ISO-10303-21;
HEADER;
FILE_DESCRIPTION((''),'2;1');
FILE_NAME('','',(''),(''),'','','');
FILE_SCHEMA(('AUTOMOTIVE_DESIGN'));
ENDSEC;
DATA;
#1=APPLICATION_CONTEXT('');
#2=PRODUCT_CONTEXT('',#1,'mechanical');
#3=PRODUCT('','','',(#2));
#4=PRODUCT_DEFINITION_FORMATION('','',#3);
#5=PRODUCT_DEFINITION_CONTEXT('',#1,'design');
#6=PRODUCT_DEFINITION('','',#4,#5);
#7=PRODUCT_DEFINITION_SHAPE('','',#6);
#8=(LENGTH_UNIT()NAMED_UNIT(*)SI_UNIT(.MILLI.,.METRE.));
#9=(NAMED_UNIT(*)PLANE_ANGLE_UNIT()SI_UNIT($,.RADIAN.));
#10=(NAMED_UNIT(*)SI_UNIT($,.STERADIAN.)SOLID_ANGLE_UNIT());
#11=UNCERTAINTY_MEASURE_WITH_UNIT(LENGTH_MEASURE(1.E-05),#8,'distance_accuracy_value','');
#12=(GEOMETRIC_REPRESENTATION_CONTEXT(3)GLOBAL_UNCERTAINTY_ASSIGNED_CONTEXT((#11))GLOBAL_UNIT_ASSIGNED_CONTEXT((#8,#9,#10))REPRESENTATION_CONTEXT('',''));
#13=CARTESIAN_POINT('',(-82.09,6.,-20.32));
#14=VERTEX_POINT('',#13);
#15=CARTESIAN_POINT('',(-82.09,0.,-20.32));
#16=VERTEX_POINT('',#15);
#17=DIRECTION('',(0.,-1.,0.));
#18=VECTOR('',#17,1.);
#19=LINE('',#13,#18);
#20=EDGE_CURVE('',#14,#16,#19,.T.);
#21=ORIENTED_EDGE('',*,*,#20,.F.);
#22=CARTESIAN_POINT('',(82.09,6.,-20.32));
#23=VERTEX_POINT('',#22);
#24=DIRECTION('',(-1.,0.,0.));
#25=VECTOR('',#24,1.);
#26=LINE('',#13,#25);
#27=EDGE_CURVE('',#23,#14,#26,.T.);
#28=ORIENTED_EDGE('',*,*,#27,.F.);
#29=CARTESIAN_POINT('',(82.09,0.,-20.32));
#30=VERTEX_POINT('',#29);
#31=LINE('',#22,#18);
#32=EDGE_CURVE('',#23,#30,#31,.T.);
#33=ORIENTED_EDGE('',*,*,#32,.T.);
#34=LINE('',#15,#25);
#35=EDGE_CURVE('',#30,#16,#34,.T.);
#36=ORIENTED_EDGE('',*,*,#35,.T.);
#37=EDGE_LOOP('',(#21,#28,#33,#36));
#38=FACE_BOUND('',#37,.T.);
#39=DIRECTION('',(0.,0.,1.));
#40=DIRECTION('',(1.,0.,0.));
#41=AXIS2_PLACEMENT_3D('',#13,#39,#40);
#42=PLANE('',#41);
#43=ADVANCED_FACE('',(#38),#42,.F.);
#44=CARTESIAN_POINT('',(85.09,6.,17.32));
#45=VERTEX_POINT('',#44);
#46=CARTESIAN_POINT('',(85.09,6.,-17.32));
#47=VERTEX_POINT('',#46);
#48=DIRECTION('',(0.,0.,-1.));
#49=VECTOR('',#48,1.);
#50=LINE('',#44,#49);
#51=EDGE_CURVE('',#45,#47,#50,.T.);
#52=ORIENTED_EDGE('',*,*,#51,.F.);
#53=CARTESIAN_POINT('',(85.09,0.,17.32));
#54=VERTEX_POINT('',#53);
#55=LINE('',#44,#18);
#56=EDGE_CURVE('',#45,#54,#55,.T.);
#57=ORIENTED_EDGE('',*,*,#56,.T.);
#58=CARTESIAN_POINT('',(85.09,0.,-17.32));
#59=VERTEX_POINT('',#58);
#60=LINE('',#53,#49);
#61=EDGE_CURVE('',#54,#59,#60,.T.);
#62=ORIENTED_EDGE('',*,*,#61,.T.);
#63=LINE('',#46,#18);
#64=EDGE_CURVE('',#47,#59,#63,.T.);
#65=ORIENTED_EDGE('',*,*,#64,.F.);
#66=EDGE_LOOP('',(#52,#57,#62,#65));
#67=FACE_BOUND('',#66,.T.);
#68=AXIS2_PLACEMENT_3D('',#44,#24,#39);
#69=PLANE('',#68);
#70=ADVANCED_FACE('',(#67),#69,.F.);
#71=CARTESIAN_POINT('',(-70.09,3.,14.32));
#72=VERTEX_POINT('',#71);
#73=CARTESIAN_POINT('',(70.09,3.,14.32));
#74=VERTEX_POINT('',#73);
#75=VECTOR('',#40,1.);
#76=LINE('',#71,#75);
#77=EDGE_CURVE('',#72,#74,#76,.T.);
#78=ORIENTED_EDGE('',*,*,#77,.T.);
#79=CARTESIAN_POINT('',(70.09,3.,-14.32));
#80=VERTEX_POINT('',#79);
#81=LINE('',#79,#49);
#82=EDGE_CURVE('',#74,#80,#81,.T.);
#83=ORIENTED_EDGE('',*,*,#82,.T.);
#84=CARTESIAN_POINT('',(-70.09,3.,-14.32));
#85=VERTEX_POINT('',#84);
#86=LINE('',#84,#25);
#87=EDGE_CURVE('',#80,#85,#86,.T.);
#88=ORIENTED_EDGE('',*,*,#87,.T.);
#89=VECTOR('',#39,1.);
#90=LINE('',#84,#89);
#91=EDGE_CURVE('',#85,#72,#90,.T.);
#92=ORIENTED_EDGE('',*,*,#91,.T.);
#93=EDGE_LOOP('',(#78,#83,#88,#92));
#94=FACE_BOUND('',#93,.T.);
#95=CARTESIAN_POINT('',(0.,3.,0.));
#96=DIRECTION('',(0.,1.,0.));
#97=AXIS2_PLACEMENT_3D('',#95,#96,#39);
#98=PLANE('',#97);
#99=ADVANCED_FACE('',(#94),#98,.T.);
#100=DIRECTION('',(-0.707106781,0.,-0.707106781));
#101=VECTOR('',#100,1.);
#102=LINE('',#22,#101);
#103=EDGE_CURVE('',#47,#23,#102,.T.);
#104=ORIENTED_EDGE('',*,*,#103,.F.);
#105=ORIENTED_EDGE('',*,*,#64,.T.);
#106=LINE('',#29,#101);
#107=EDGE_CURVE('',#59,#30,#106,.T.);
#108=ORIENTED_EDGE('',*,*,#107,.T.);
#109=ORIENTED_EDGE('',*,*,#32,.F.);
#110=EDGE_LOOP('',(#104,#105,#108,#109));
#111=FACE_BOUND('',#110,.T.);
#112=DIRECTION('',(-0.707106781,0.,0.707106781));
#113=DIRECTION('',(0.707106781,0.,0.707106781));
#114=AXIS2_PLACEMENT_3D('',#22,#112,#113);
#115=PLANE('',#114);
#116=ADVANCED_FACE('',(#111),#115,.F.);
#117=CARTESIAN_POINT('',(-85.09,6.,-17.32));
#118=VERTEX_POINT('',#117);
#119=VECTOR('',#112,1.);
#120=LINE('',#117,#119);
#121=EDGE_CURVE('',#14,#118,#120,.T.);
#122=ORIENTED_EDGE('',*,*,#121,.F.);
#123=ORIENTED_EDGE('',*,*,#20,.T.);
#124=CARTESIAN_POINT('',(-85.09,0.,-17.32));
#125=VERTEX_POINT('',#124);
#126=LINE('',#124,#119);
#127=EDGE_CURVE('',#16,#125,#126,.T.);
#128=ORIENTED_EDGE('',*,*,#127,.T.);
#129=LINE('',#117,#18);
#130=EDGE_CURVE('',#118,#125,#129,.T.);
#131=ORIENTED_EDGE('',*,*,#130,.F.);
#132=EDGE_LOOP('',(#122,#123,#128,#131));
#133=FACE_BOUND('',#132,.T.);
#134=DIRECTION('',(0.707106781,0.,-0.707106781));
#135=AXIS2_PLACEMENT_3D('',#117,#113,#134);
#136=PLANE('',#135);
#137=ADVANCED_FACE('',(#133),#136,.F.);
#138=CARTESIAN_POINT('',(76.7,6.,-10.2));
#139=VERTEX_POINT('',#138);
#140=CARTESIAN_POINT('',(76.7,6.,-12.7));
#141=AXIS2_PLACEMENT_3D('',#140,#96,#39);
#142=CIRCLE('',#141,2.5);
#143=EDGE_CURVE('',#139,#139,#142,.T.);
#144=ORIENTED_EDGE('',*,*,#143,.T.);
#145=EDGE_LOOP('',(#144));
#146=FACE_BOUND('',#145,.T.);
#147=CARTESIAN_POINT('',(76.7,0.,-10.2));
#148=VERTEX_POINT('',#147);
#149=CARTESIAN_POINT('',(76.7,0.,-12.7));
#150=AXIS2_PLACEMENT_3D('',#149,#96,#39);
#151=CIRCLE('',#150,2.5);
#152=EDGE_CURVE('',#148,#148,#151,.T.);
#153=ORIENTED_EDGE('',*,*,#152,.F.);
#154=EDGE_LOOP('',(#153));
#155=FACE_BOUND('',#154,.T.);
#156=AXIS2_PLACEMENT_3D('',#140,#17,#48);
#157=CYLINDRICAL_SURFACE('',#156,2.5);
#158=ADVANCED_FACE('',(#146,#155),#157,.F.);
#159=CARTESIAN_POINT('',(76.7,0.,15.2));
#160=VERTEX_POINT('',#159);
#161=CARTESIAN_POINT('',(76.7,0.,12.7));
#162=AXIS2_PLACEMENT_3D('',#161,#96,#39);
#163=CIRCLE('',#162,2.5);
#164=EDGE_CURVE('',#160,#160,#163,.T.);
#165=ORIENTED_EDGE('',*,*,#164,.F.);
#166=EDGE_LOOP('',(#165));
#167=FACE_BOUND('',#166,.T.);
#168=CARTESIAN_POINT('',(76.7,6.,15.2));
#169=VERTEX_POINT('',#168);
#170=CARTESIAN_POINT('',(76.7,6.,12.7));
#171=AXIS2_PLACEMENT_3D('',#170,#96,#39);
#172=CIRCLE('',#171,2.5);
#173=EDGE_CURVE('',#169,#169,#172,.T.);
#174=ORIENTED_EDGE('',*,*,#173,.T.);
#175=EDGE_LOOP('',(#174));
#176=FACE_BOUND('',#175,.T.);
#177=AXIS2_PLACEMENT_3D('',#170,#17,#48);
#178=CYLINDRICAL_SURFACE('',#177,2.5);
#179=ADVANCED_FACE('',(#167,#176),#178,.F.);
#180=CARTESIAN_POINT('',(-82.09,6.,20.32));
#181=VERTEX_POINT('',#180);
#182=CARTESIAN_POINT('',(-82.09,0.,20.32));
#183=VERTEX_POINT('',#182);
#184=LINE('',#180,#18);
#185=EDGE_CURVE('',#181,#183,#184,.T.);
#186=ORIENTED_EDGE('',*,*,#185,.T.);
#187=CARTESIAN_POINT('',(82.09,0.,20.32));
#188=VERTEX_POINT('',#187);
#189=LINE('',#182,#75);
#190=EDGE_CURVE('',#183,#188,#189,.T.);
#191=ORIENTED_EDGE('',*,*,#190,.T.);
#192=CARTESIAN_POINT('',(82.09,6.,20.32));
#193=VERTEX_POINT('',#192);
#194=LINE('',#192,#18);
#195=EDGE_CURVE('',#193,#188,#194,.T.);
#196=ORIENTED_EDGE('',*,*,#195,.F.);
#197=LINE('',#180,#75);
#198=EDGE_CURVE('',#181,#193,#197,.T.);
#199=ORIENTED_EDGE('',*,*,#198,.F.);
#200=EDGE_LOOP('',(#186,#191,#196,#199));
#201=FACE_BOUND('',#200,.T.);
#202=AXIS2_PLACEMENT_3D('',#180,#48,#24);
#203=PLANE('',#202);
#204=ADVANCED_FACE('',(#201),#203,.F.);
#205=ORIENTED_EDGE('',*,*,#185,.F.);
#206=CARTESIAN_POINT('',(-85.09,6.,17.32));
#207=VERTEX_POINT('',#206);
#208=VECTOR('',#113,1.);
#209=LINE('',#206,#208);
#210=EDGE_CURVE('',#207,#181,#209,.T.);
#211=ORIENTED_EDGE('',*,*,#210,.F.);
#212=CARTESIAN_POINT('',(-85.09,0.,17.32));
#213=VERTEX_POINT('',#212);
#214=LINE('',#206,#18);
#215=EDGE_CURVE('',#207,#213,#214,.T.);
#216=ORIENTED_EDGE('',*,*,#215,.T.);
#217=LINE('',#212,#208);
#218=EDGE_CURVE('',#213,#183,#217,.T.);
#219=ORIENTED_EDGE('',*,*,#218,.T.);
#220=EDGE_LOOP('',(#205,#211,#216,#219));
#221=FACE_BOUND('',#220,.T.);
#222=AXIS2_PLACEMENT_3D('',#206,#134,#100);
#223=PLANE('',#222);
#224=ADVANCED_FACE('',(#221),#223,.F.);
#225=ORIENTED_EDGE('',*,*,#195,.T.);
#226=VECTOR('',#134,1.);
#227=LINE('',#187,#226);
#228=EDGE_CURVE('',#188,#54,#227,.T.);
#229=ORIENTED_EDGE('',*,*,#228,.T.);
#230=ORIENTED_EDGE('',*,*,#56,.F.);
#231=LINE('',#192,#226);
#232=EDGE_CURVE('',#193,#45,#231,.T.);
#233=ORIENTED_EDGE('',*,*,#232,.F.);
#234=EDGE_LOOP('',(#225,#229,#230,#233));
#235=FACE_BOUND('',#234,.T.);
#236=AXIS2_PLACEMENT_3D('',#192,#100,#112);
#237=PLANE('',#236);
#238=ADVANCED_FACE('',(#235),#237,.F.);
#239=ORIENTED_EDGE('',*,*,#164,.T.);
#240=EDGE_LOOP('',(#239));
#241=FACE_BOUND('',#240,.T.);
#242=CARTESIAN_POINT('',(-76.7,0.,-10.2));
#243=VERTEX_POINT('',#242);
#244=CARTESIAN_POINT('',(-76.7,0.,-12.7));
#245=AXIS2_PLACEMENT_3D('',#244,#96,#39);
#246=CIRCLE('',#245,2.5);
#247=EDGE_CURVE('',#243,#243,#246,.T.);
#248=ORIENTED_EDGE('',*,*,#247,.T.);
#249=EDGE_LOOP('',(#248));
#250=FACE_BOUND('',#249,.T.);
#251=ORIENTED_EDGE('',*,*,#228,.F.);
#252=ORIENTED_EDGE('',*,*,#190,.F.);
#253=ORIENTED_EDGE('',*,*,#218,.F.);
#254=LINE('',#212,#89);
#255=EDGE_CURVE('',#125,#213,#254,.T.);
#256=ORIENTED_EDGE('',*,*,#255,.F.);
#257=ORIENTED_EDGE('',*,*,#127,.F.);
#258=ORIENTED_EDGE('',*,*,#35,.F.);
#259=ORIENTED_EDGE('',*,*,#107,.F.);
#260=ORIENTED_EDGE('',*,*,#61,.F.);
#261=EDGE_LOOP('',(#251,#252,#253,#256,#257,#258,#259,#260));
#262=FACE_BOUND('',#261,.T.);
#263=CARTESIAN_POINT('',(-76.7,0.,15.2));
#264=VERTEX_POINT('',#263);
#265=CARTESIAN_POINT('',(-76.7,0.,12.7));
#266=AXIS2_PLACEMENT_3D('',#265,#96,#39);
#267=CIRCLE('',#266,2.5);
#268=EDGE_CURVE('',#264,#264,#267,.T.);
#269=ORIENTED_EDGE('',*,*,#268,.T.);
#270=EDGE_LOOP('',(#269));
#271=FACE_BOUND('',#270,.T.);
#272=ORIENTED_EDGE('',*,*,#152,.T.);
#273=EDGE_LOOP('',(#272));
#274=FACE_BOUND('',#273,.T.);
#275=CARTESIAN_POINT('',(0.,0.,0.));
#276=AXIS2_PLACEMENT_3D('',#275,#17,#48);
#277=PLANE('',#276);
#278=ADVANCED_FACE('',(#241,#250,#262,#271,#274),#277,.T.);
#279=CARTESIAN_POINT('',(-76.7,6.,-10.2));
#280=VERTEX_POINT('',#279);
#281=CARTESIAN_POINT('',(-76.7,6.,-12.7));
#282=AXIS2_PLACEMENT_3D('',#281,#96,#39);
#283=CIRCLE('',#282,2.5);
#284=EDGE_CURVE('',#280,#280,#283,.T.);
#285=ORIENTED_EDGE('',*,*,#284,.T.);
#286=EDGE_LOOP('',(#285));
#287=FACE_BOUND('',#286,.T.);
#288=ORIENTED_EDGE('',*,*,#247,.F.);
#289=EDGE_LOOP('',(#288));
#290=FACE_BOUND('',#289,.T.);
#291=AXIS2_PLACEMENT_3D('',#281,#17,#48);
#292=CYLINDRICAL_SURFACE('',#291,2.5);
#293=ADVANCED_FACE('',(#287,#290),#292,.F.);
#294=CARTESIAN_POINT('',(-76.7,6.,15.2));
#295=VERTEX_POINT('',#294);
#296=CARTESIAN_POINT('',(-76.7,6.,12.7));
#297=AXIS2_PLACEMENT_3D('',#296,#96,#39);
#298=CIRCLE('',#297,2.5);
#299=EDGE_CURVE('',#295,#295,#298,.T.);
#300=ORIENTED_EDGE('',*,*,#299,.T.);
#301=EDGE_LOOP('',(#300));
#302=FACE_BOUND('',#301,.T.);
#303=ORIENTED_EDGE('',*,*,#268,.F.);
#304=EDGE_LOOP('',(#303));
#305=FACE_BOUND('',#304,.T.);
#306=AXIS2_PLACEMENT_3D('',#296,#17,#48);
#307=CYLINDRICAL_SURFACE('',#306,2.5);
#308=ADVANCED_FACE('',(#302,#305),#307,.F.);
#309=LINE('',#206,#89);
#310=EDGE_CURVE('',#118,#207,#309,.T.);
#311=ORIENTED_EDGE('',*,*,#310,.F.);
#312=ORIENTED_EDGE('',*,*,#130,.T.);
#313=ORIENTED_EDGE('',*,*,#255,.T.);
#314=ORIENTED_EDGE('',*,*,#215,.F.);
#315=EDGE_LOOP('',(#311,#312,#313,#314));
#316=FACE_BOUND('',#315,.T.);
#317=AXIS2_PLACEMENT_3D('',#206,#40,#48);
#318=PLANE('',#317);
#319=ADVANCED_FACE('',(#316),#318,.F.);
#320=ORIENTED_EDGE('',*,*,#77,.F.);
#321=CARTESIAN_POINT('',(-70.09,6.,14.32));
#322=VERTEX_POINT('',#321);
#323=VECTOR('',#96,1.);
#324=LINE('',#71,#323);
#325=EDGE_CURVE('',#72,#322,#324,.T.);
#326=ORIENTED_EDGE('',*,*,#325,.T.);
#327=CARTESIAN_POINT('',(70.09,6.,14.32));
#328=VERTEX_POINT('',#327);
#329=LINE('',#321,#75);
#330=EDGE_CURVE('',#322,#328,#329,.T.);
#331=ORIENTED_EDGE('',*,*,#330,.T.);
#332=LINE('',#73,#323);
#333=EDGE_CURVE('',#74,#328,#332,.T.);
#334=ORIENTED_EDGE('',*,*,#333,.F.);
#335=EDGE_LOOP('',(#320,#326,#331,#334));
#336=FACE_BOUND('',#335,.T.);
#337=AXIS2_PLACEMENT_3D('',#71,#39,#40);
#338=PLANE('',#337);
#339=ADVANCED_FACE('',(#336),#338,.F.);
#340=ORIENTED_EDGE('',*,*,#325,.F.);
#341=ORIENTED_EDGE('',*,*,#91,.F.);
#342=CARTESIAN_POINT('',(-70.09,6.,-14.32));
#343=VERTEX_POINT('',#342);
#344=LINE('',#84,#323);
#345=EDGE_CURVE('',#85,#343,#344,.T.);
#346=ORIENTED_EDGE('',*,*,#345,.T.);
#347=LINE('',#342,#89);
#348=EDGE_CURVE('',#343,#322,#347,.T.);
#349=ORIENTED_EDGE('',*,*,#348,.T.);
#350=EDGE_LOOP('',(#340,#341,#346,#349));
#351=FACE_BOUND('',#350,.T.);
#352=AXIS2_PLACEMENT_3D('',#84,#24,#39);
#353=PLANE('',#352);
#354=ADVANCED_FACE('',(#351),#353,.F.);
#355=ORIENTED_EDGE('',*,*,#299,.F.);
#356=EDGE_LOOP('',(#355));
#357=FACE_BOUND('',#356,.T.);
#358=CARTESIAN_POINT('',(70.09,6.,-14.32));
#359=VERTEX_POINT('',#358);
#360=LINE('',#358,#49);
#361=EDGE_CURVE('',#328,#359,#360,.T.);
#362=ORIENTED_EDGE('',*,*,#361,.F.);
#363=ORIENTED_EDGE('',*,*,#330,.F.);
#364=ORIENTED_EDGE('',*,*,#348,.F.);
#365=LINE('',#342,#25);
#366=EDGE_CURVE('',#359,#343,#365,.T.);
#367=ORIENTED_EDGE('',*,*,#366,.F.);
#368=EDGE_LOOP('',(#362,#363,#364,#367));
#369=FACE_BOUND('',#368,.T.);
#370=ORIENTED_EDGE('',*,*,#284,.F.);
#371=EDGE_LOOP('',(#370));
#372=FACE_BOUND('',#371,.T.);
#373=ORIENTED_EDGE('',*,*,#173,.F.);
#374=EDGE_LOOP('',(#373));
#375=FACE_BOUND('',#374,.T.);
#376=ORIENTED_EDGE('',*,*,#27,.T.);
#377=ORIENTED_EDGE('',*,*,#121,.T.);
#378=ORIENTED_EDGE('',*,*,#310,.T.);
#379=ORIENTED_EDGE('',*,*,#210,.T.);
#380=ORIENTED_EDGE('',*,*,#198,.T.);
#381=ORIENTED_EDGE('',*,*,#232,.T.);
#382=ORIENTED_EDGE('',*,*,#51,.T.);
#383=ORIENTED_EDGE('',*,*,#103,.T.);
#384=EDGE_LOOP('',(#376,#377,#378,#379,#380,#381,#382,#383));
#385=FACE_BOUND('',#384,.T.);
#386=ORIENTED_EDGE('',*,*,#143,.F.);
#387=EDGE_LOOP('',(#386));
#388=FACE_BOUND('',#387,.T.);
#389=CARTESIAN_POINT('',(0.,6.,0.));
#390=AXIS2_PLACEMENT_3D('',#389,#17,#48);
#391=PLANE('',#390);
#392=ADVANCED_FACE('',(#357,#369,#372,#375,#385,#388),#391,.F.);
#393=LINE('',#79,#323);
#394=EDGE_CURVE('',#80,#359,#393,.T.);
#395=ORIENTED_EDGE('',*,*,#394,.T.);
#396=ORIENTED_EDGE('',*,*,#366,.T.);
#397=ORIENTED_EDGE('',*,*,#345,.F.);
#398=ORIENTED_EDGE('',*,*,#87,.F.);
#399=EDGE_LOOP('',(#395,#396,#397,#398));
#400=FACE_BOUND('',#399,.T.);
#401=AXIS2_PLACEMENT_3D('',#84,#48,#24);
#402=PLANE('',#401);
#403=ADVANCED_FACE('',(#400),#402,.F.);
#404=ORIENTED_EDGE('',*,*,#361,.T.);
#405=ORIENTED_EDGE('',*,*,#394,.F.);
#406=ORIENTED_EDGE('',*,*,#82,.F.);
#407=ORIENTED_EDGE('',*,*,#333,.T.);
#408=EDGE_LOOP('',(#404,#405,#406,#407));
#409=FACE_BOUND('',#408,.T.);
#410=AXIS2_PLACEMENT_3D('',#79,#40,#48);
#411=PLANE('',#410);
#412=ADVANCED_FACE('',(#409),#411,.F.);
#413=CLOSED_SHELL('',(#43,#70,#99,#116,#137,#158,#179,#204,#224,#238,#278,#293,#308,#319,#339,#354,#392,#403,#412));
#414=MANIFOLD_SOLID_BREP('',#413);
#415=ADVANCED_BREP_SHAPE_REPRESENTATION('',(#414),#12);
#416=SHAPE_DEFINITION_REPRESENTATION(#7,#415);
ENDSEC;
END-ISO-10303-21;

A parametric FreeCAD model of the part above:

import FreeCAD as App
import Part
import Sketcher
Q = App.Units.Quantity

doc = App.newDocument("Part")
params = doc.addObject("Spreadsheet::Sheet", "Params")
for row, (alias, value) in enumerate([
    ("sketch1_diameter", "5 mm"),
    ("sketch1_width", "164.18 mm"),
    ("sketch1_height", "34.64 mm"),
    ("pad1_length", "6 mm"),
    ("sketch2_width", "140.18 mm"),
    ("sketch2_height", "28.64 mm"),
    ("pocket1_length", "3 mm"),
], start=1):
    params.set(f"A{row}", alias)
    params.set(f"B{row}", "=" + value)
    params.setAlias(f"B{row}", alias)

body = doc.addObject("PartDesign::Body", "Body")

sketch1 = doc.addObject("Sketcher::SketchObject", "Sketch")
body.addObject(sketch1)
sketch1.AttachmentSupport = (doc.XZ_Plane, [""])
sketch1.MapMode = "FlatFace"
sketch1.addGeometry([
    Part.LineSegment(App.Vector(-82.1, -20.3, 0), App.Vector(-85.1, -17.3, 0)),
    Part.LineSegment(App.Vector(-85.1, -17.3, 0), App.Vector(-85.1, 17.3, 0)),
    Part.LineSegment(App.Vector(-85.1, 17.3, 0), App.Vector(-82.1, 20.3, 0)),
    Part.LineSegment(App.Vector(-82.1, 20.3, 0), App.Vector(82.1, 20.3, 0)),
    Part.LineSegment(App.Vector(82.1, 20.3, 0), App.Vector(85.1, 17.3, 0)),
    Part.LineSegment(App.Vector(85.1, 17.3, 0), App.Vector(85.1, -17.3, 0)),
    Part.LineSegment(App.Vector(85.1, -17.3, 0), App.Vector(82.1, -20.3, 0)),
    Part.LineSegment(App.Vector(82.1, -20.3, 0), App.Vector(-82.1, -20.3, 0)),
    Part.Circle(App.Vector(76.7, 12.7, 0), App.Vector(0, 0, 1), 2.5),
    Part.Circle(App.Vector(-76.7, 12.7, 0), App.Vector(0, 0, 1), 2.5),
    Part.Circle(App.Vector(76.7, -12.7, 0), App.Vector(0, 0, 1), 2.5),
    Part.Circle(App.Vector(-76.7, -12.7, 0), App.Vector(0, 0, 1), 2.5),
], False)
sketch1.addConstraint([
    Sketcher.Constraint("Coincident", 0, 2, 1, 1),
    Sketcher.Constraint("Coincident", 1, 2, 2, 1),
    Sketcher.Constraint("Coincident", 2, 2, 3, 1),
    Sketcher.Constraint("Coincident", 3, 2, 4, 1),
    Sketcher.Constraint("Coincident", 4, 2, 5, 1),
    Sketcher.Constraint("Coincident", 5, 2, 6, 1),
    Sketcher.Constraint("Coincident", 6, 2, 7, 1),
    Sketcher.Constraint("Coincident", 7, 2, 0, 1),
    Sketcher.Constraint("Vertical", 1),
    Sketcher.Constraint("Horizontal", 3),
    Sketcher.Constraint("Vertical", 5),
    Sketcher.Constraint("Horizontal", 7),
    Sketcher.Constraint("Equal", 8, 9),
    Sketcher.Constraint("Equal", 9, 10),
    Sketcher.Constraint("Equal", 10, 11),
    Sketcher.Constraint("Symmetric", 9, 3, 10, 3, -1, 1),
    Sketcher.Constraint("Symmetric", 8, 3, 11, 3, -1, 1),
    Sketcher.Constraint("Symmetric", 0, 2, 4, 2, -1, 1),
    Sketcher.Constraint("Symmetric", 2, 2, 6, 2, -1, 1),
    Sketcher.Constraint("Symmetric", 8, 3, 9, 3, -2),
    Sketcher.Constraint("Perpendicular", 0, 2),
    Sketcher.Constraint("Perpendicular", 2, 4),
    Sketcher.Constraint("Perpendicular", 4, 6),
    Sketcher.Constraint("Horizontal", 1, 2, 4, 2),
    Sketcher.Constraint("Vertical", 3, 2, 6, 2),
    Sketcher.Constraint("Diameter", 8, Q("5 mm")),
    Sketcher.Constraint("DistanceX", 1, 2, 2, 2, Q("3 mm")),
    Sketcher.Constraint("DistanceX", 3, 1, 3, 2, Q("164.18 mm")),
    Sketcher.Constraint("DistanceY", 1, 1, 1, 2, Q("34.64 mm")),
    Sketcher.Constraint("DistanceX", -1, 1, 8, 3, Q("76.7 mm")),
    Sketcher.Constraint("DistanceY", -1, 1, 8, 3, Q("12.7 mm")),
])
sketch1.setExpression("Constraints[25]", "Params.sketch1_diameter")
sketch1.setExpression("Constraints[27]", "Params.sketch1_width")
sketch1.setExpression("Constraints[28]", "Params.sketch1_height")
pad1 = doc.addObject("PartDesign::Pad", "Pad")
body.addObject(pad1)
pad1.Profile = sketch1
pad1.setExpression("Length", "Params.pad1_length")
pad1.Reversed = True

sketch2 = doc.addObject("Sketcher::SketchObject", "Sketch001")
body.addObject(sketch2)
sketch2.AttachmentSupport = (doc.XZ_Plane, [""])
sketch2.MapMode = "FlatFace"
sketch2.AttachmentOffset = App.Placement(App.Vector(0, 0, -6), App.Rotation())
sketch2.addGeometry([
    Part.LineSegment(App.Vector(-70, -14, 0), App.Vector(-70, 14, 0)),
    Part.LineSegment(App.Vector(-70, 14, 0), App.Vector(70, 14, 0)),
    Part.LineSegment(App.Vector(70, 14, 0), App.Vector(70, -14, 0)),
    Part.LineSegment(App.Vector(70, -14, 0), App.Vector(-70, -14, 0)),
], False)
sketch2.addConstraint([
    Sketcher.Constraint("Coincident", 0, 2, 1, 1),
    Sketcher.Constraint("Coincident", 1, 2, 2, 1),
    Sketcher.Constraint("Coincident", 2, 2, 3, 1),
    Sketcher.Constraint("Coincident", 3, 2, 0, 1),
    Sketcher.Constraint("Vertical", 0),
    Sketcher.Constraint("Horizontal", 1),
    Sketcher.Constraint("Vertical", 2),
    Sketcher.Constraint("Horizontal", 3),
    Sketcher.Constraint("Symmetric", 0, 2, 2, 2, -1, 1),
    Sketcher.Constraint("DistanceX", 1, 1, 1, 2, Q("140.18 mm")),
    Sketcher.Constraint("DistanceY", 0, 1, 0, 2, Q("28.64 mm")),
])
sketch2.setExpression("Constraints[9]", "Params.sketch2_width")
sketch2.setExpression("Constraints[10]", "Params.sketch2_height")
pocket1 = doc.addObject("PartDesign::Pocket", "Pocket")
body.addObject(pocket1)
pocket1.Profile = sketch2
pocket1.setExpression("Length", "Params.pocket1_length")
pocket1.Reversed = True

doc.recompute()
